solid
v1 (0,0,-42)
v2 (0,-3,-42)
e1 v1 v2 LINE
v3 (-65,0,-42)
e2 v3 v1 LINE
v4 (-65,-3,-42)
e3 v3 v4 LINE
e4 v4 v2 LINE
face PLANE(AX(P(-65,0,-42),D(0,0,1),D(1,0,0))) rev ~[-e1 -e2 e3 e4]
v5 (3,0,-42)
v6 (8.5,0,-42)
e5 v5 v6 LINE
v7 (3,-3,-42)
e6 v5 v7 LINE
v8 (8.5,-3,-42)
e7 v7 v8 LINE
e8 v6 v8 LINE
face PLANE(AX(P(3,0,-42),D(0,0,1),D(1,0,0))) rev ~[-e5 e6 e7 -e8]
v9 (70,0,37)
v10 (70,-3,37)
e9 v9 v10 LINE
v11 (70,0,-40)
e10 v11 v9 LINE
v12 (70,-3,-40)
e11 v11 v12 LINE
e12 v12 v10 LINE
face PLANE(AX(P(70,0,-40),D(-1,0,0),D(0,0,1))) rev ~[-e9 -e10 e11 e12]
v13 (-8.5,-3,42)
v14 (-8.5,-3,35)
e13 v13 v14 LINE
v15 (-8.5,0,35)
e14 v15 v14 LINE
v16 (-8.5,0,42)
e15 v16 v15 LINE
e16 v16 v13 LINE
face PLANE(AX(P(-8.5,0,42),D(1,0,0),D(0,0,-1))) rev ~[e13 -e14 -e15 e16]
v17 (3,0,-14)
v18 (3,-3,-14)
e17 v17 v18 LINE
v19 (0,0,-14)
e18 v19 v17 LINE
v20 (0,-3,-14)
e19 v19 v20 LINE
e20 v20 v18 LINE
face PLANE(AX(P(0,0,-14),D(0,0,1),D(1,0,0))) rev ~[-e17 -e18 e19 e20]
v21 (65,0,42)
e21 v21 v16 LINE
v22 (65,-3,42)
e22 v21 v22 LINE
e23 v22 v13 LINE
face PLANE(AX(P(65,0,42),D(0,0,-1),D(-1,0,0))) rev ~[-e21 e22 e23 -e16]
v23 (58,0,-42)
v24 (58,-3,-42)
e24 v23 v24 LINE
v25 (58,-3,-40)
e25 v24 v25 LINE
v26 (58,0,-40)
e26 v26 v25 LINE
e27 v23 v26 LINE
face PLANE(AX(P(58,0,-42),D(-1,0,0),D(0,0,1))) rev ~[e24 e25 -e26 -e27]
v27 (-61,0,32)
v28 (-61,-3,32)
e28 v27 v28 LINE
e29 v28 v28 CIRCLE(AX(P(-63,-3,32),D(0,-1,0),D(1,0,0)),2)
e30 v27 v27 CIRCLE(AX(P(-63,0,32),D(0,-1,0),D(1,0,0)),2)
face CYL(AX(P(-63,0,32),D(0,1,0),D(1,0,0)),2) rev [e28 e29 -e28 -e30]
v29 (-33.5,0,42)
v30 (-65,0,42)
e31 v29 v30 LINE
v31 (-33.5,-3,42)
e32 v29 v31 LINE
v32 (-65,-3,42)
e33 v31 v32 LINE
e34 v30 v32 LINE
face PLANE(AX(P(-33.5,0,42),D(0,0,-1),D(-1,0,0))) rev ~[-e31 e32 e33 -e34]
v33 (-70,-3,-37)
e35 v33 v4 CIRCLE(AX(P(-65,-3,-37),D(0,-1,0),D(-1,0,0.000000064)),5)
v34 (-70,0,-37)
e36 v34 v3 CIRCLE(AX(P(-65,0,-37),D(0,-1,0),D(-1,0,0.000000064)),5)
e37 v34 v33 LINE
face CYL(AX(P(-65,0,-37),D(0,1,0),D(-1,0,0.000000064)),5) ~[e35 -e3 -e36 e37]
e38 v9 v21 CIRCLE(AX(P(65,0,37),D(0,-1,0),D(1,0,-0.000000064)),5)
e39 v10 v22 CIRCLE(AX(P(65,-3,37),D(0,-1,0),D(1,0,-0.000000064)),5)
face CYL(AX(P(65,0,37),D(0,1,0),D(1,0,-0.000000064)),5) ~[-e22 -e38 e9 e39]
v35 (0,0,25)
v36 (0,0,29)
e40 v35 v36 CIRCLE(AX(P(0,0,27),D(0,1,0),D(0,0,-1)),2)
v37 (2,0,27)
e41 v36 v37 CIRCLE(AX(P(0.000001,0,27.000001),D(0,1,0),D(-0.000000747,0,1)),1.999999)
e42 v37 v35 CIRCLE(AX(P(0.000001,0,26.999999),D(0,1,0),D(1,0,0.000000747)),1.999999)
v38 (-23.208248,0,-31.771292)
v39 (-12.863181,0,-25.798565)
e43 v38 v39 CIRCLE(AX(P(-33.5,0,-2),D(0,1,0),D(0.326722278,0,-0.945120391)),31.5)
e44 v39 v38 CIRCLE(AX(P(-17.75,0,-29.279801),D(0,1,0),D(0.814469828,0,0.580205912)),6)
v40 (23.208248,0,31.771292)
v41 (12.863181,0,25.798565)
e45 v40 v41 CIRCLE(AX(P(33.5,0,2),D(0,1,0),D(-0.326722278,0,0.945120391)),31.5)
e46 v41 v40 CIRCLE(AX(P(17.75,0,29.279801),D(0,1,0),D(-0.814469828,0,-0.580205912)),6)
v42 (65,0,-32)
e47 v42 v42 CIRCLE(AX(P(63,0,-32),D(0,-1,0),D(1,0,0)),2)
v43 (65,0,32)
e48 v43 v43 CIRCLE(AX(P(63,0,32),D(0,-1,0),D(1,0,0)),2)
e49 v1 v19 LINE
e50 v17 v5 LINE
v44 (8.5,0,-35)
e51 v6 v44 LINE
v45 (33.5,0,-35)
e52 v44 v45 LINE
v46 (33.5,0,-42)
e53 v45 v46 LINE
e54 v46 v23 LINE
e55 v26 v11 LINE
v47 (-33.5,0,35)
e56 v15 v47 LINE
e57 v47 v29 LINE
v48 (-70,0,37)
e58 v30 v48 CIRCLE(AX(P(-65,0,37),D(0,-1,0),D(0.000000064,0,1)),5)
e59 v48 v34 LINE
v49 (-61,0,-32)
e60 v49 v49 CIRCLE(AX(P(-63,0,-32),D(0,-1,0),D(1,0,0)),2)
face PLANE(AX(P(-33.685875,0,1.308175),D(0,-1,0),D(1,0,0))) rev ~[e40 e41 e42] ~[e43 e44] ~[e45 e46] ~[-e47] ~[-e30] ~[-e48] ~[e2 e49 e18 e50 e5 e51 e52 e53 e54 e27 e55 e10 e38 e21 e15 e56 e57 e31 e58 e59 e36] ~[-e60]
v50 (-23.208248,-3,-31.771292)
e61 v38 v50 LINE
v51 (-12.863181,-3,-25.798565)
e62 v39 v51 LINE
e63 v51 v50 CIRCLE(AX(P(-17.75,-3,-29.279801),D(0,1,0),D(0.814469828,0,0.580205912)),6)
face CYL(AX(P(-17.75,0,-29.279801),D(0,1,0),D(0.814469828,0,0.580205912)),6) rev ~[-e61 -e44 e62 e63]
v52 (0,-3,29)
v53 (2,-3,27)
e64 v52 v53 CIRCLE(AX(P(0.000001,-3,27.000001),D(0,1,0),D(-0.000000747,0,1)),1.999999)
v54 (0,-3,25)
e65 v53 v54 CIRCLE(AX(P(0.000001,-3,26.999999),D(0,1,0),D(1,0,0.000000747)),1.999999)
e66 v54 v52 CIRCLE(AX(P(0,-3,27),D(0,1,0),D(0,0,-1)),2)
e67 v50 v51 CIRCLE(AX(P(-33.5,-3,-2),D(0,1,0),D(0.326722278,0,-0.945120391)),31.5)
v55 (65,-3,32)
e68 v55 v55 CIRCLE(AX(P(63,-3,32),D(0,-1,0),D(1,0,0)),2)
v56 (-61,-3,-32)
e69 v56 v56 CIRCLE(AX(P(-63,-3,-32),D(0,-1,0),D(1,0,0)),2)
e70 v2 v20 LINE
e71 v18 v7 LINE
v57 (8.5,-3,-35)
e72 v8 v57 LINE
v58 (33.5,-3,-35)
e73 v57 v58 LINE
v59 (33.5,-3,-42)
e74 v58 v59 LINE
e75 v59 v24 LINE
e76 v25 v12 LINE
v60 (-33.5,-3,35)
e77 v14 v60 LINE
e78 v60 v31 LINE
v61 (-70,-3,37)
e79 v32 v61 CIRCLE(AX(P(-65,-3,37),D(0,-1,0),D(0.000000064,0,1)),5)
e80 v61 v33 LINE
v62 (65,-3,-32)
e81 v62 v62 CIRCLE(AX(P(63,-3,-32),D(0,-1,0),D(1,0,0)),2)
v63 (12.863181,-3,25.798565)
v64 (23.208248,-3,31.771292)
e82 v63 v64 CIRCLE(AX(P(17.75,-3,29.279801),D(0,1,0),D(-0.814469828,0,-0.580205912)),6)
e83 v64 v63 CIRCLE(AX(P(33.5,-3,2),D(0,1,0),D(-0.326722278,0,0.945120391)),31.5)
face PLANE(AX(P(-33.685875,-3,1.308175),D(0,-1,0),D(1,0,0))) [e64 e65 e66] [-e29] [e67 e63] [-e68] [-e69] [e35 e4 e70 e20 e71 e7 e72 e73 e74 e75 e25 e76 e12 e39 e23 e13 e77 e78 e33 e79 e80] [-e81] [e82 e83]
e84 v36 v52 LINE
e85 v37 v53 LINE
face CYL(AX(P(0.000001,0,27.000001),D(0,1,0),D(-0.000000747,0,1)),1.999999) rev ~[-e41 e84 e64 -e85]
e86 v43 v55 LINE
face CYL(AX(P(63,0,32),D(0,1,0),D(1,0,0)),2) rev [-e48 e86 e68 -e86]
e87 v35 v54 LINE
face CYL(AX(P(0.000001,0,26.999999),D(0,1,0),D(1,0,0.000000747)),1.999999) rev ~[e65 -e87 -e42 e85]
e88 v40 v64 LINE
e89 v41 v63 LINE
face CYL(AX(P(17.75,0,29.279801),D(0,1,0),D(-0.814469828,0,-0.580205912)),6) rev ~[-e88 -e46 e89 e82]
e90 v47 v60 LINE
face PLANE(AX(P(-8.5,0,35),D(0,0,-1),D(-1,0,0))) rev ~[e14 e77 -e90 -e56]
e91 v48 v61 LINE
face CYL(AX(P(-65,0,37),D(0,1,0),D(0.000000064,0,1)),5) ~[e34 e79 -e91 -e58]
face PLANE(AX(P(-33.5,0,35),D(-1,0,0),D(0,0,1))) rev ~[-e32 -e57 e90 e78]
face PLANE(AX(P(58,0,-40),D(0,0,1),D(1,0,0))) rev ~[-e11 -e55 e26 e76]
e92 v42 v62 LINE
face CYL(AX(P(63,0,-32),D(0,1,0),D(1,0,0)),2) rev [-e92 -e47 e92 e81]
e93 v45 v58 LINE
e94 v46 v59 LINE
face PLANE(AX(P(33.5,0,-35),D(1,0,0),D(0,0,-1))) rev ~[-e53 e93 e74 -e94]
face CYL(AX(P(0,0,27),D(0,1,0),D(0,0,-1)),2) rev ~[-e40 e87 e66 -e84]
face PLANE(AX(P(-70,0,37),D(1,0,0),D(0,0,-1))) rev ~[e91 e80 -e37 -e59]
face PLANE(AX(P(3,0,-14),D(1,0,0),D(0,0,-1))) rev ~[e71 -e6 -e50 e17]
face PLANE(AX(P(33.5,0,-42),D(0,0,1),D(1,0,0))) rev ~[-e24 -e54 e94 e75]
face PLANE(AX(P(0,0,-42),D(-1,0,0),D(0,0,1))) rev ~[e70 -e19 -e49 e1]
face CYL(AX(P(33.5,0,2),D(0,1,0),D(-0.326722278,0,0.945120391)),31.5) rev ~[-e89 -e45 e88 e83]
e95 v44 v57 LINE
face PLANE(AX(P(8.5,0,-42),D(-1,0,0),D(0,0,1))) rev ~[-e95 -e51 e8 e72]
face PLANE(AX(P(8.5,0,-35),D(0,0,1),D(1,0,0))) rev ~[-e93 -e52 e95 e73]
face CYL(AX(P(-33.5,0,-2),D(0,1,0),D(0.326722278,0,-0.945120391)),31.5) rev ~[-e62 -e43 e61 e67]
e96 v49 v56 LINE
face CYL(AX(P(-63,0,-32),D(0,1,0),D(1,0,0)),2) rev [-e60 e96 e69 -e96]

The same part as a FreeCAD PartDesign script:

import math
import FreeCAD as App
import Part
import Sketcher

V = App.Vector

doc = App.newDocument("Part")
body = doc.addObject("PartDesign::Body", "Body")

# Sketch on XZ plane
sketch1 = body.newObject("Sketcher::SketchObject", "Sketch")
sketch1.AttachmentSupport = (doc.getObject("XZ_Plane"), [""])
sketch1.MapMode = "FlatFace"
sketch1.addGeometry([
    Part.ArcOfCircle(Part.Circle(V(-65, -37, 0), V(0, 0, 1), 5), math.radians(180), math.radians(270)),  # 0
    Part.LineSegment(V(-65, -42, 0), V(0, -42, 0)),  # 1
    Part.LineSegment(V(0, -42, 0), V(0, -14, 0)),  # 2
    Part.LineSegment(V(0, -14, 0), V(3, -14, 0)),  # 3
    Part.LineSegment(V(3, -14, 0), V(3, -42, 0)),  # 4
    Part.LineSegment(V(3, -42, 0), V(8.5, -42, 0)),  # 5
    Part.LineSegment(V(8.5, -42, 0), V(8.5, -35, 0)),  # 6
    Part.LineSegment(V(8.5, -35, 0), V(33.5, -35, 0)),  # 7
    Part.LineSegment(V(33.5, -35, 0), V(33.5, -42, 0)),  # 8
    Part.LineSegment(V(33.5, -42, 0), V(58, -42, 0)),  # 9
    Part.LineSegment(V(58, -42, 0), V(58, -40, 0)),  # 10
    Part.LineSegment(V(58, -40, 0), V(70, -40, 0)),  # 11
    Part.LineSegment(V(70, -40, 0), V(70, 37, 0)),  # 12
    Part.ArcOfCircle(Part.Circle(V(65, 37, 0), V(0, 0, 1), 5), math.radians(0), math.radians(90)),  # 13
    Part.LineSegment(V(65, 42, 0), V(-8.5, 42, 0)),  # 14
    Part.LineSegment(V(-8.5, 42, 0), V(-8.5, 35, 0)),  # 15
    Part.LineSegment(V(-8.5, 35, 0), V(-33.5, 35, 0)),  # 16
    Part.LineSegment(V(-33.5, 35, 0), V(-33.5, 42, 0)),  # 17
    Part.LineSegment(V(-33.5, 42, 0), V(-65, 42, 0)),  # 18
    Part.ArcOfCircle(Part.Circle(V(-65, 37, 0), V(0, 0, 1), 5), math.radians(90), math.radians(180)),  # 19
    Part.LineSegment(V(-70, 37, 0), V(-70, -37, 0)),  # 20
    Part.Circle(V(-63, -32, 0), V(0, 0, 1), 2),  # 21
    Part.ArcOfCircle(Part.Circle(V(-17.8, -29.3, 0), V(0, 0, 1), 6), math.radians(-155), math.radians(35)),  # 22
    Part.ArcOfCircle(Part.Circle(V(-33.5, -2, 0), V(0, 0, 1), 31.5), math.radians(-49), math.radians(289)),  # 23
    Part.Circle(V(63, -32, 0), V(0, 0, 1), 2),  # 24
    Part.Circle(V(-63, 32, 0), V(0, 0, 1), 2),  # 25
    Part.ArcOfCircle(Part.Circle(V(17.8, 29.3, 0), V(0, 0, 1), 6), math.radians(25), math.radians(215)),  # 26
    Part.ArcOfCircle(Part.Circle(V(33.5, 2, 0), V(0, 0, 1), 31.5), math.radians(131), math.radians(469)),  # 27
    Part.ArcOfCircle(Part.Circle(V(0, 27, 0), V(0, 0, 1), 2), math.radians(90), math.radians(270)),  # 28
    Part.ArcOfCircle(Part.Circle(V(0, 27, 0), V(0, 0, 1), 2), math.radians(0), math.radians(90)),  # 29
    Part.ArcOfCircle(Part.Circle(V(0, 27, 0), V(0, 0, 1), 2), math.radians(-90), math.radians(0)),  # 30
    Part.Circle(V(63, 32, 0), V(0, 0, 1), 2),  # 31
], False)
sketch1.addConstraint([
    Sketcher.Constraint("Tangent", 0, 2, 1, 1),
    Sketcher.Constraint("Coincident", 1, 2, 2, 1),
    Sketcher.Constraint("Coincident", 2, 2, 3, 1),
    Sketcher.Constraint("Coincident", 3, 2, 4, 1),
    Sketcher.Constraint("Coincident", 4, 2, 5, 1),
    Sketcher.Constraint("Coincident", 5, 2, 6, 1),
    Sketcher.Constraint("Coincident", 6, 2, 7, 1),
    Sketcher.Constraint("Coincident", 7, 2, 8, 1),
    Sketcher.Constraint("Coincident", 8, 2, 9, 1),
    Sketcher.Constraint("Coincident", 9, 2, 10, 1),
    Sketcher.Constraint("Coincident", 10, 2, 11, 1),
    Sketcher.Constraint("Coincident", 11, 2, 12, 1),
    Sketcher.Constraint("Tangent", 12, 2, 13, 1),
    Sketcher.Constraint("Tangent", 13, 2, 14, 1),
    Sketcher.Constraint("Coincident", 14, 2, 15, 1),
    Sketcher.Constraint("Coincident", 15, 2, 16, 1),
    Sketcher.Constraint("Coincident", 16, 2, 17, 1),
    Sketcher.Constraint("Coincident", 17, 2, 18, 1),
    Sketcher.Constraint("Tangent", 18, 2, 19, 1),
    Sketcher.Constraint("Tangent", 19, 2, 20, 1),
    Sketcher.Constraint("Tangent", 20, 2, 0, 1),
    Sketcher.Constraint("Coincident", 22, 1, 23, 2),
    Sketcher.Constraint("Coincident", 23, 1, 22, 2),
    Sketcher.Constraint("Coincident", 26, 1, 27, 2),
    Sketcher.Constraint("Coincident", 27, 1, 26, 2),
    Sketcher.Constraint("Tangent", 28, 1, 29, 2),
    Sketcher.Constraint("Tangent", 29, 1, 30, 2),
    Sketcher.Constraint("Tangent", 30, 1, 28, 2),
    Sketcher.Constraint("Horizontal", 1),
    Sketcher.Constraint("Vertical", 2),
    Sketcher.Constraint("Horizontal", 3),
    Sketcher.Constraint("Vertical", 4),
    Sketcher.Constraint("Horizontal", 5),
    Sketcher.Constraint("Vertical", 6),
    Sketcher.Constraint("Horizontal", 7),
    Sketcher.Constraint("Vertical", 8),
    Sketcher.Constraint("Horizontal", 9),
    Sketcher.Constraint("Vertical", 10),
    Sketcher.Constraint("Horizontal", 11),
    Sketcher.Constraint("Vertical", 12),
    Sketcher.Constraint("Horizontal", 14),
    Sketcher.Constraint("Vertical", 15),
    Sketcher.Constraint("Horizontal", 16),
    Sketcher.Constraint("Vertical", 17),
    Sketcher.Constraint("Horizontal", 18),
    Sketcher.Constraint("Vertical", 20),
    Sketcher.Constraint("Equal", 0, 13),
    Sketcher.Constraint("Equal", 13, 19),
    Sketcher.Constraint("Equal", 21, 24),
    Sketcher.Constraint("Equal", 24, 25),
    Sketcher.Constraint("Equal", 22, 26),
    Sketcher.Constraint("Equal", 23, 27),
    Sketcher.Constraint("Equal", 25, 28),
    Sketcher.Constraint("Equal", 30, 31),
    Sketcher.Constraint("Symmetric", 0, 3, 13, 3, -1, 1),
    Sketcher.Constraint("Symmetric", 24, 3, 25, 3, -1, 1),
    Sketcher.Constraint("Symmetric", 22, 3, 26, 3, -1, 1),
    Sketcher.Constraint("Symmetric", 23, 3, 27, 3, -1, 1),
    Sketcher.Constraint("Symmetric", 21, 3, 31, 3, -1, 1),
    Sketcher.Constraint("Symmetric", 5, 2, 14, 2, -1, 1),
    Sketcher.Constraint("Symmetric", 7, 2, 16, 2, -1, 1),
    Sketcher.Constraint("Symmetric", 21, 3, 24, 3, -2),
    Sketcher.Constraint("PointOnObject", 28, 3, -2),
    Sketcher.Constraint("PointOnObject", 1, 2, -2),
    Sketcher.Constraint("PointOnObject", 28, 1, -2),
    Sketcher.Constraint("PointOnObject", 30, 1, -2),
    Sketcher.Constraint("Horizontal", 13, 3, 19, 3),
    Sketcher.Constraint("Horizontal", 5, 2, 8, 2),
    Sketcher.Constraint("Horizontal", 30, 3, 29, 1),
    Sketcher.Constraint("Vertical", 27, 3, 7, 2),
    Sketcher.Constraint("Diameter", 21, 4.0),
    Sketcher.Constraint("Radius", 0, 5.0),
    Sketcher.Constraint("Radius", 22, 6.0),
    Sketcher.Constraint("Radius", 23, 31.5),
    Sketcher.Constraint("DistanceX", 1, 1, 1, 2, 65.0),
    Sketcher.Constraint("DistanceX", 3, 1, 3, 2, 3.0),
    Sketcher.Constraint("DistanceX", 7, 1, 7, 2, 25.0),
    Sketcher.Constraint("DistanceX", 11, 1, 11, 2, 12.0),
    Sketcher.Constraint("DistanceY", 2, 1, 2, 2, 28.0),
    Sketcher.Constraint("DistanceY", 6, 1, 6, 2, 7.0),
    Sketcher.Constraint("DistanceY", 10, 1, 10, 2, 2.0),
    Sketcher.Constraint("DistanceY", 12, 1, 12, 2, 77.0),
    Sketcher.Constraint("DistanceX", 5, 1, 5, 2, 5.5),
    Sketcher.Constraint("DistanceX", 21, 3, -1, 1, 63.0),
    Sketcher.Constraint("DistanceY", 21, 3, -1, 1, 32.0),
    Sketcher.Constraint("DistanceY", 23, 3, -1, 1, 2.0),
    Sketcher.Constraint("DistanceY", -1, 1, 28, 3, 27.0),
    Sketcher.Constraint("DistanceX", 22, 3, 26, 3, 35.5),
    Sketcher.Constraint("DistanceY", 22, 3, -1, 1, 29.279801),
])
pad1 = body.newObject("PartDesign::Pad", "Pad")
pad1.Profile = sketch1
pad1.Length = 3

doc.recompute()
